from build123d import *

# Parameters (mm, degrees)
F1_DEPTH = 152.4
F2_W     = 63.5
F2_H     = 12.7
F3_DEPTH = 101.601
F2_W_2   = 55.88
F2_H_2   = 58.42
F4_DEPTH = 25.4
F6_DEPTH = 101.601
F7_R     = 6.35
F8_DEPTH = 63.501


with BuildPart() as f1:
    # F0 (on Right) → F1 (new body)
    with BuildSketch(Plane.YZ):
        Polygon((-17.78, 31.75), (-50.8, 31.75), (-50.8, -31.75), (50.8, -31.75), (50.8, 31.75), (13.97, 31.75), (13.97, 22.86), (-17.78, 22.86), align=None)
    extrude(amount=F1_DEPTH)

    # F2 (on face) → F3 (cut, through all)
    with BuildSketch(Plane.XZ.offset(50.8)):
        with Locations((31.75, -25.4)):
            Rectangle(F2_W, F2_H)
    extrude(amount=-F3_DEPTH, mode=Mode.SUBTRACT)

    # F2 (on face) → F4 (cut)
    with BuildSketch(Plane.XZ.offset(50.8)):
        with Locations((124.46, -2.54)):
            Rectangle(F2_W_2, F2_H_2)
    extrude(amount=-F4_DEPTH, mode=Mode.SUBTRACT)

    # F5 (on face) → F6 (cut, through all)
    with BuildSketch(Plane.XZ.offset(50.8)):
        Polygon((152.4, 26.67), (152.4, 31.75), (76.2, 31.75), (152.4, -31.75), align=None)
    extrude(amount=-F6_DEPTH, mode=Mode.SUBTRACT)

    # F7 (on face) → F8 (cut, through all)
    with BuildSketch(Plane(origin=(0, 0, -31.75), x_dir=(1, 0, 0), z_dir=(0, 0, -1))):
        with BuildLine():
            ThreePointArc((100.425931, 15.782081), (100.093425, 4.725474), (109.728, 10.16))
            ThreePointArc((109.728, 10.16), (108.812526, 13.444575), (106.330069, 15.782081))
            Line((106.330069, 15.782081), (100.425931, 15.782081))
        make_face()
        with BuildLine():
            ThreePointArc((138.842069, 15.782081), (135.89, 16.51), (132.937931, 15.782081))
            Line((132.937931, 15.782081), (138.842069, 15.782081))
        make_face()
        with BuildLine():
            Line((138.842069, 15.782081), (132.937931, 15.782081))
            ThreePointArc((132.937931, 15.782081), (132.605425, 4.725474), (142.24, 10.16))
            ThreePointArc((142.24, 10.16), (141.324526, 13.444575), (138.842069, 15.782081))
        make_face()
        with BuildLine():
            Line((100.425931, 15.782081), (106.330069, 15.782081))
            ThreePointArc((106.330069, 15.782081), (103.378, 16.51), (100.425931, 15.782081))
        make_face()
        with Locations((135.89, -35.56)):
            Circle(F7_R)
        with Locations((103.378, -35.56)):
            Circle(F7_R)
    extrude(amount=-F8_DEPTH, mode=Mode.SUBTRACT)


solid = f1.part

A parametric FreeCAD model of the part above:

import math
import FreeCAD as App
import Part
import Sketcher
from FreeCAD import Vector
Q = App.Units.Quantity


def add_polygon(sketch, points):
    """Adds a closed chain of lines whose ends are joined by coincident constraints."""
    first, n = sketch.GeometryCount, len(points)
    for a, b in zip(points, points[1:] + points[:1]):
        sketch.addGeometry(Part.LineSegment(App.Vector(*a, 0), App.Vector(*b, 0)), False)
    for i in range(n):
        sketch.addConstraint(Sketcher.Constraint("Coincident", first + i, 2, first + (i + 1) % n, 1))

doc = App.newDocument("Part")
body = doc.addObject("PartDesign::Body", "Body")

sketch1 = doc.addObject("Sketcher::SketchObject", "Sketch")
body.addObject(sketch1)
sketch1.AttachmentSupport = (doc.YZ_Plane, [""])
sketch1.MapMode = "FlatFace"
add_polygon(sketch1, [(-17.78, 31.75), (-50.8, 31.75), (-50.8, -31.75), (50.8, -31.75), (50.8, 31.75), (13.97, 31.75), (13.97, 22.86), (-17.78, 22.86)])
sketch1.addConstraint(Sketcher.Constraint("Horizontal", 0))
sketch1.addConstraint(Sketcher.Constraint("Vertical", 1))
sketch1.addConstraint(Sketcher.Constraint("Horizontal", 2))
sketch1.addConstraint(Sketcher.Constraint("Vertical", 3))
sketch1.addConstraint(Sketcher.Constraint("Horizontal", 4))
sketch1.addConstraint(Sketcher.Constraint("Vertical", 5))
sketch1.addConstraint(Sketcher.Constraint("Horizontal", 6))
sketch1.addConstraint(Sketcher.Constraint("Vertical", 7))
sketch1.addConstraint(Sketcher.Constraint("Symmetric", 0, 2, 2, 2, -1, 1))
sketch1.addConstraint(Sketcher.Constraint("Horizontal", 0, 2, 3, 2))
sketch1.addConstraint(Sketcher.Constraint("DistanceX", 2, 1, 2, 2, Q("4 in")))
sketch1.addConstraint(Sketcher.Constraint("DistanceX", 0, 2, 0, 1, Q("1.3 in")))
sketch1.addConstraint(Sketcher.Constraint("DistanceY", 1, 2, 1, 1, Q("2.5 in")))
sketch1.addConstraint(Sketcher.Constraint("DistanceX", 4, 2, 4, 1, Q("1.45 in")))
sketch1.addConstraint(Sketcher.Constraint("DistanceY", 5, 2, 5, 1, Q("0.35 in")))
pad1 = doc.addObject("PartDesign::Pad", "Pad")
body.addObject(pad1)
pad1.Profile = sketch1
pad1.Length = Q("6 in")

sketch2 = doc.addObject("Sketcher::SketchObject", "Sketch001")
body.addObject(sketch2)
sketch2.AttachmentSupport = (doc.XZ_Plane, [""])
sketch2.MapMode = "FlatFace"
sketch2.AttachmentOffset = App.Placement(Vector(0, 0, 2 * 25.4), App.Rotation())
add_polygon(sketch2, [(0, -19.05), (0, -31.75), (63.5, -31.75), (63.5, -19.05)])
sketch2.addConstraint(Sketcher.Constraint("Vertical", 0))
sketch2.addConstraint(Sketcher.Constraint("Horizontal", 1))
sketch2.addConstraint(Sketcher.Constraint("Vertical", 2))
sketch2.addConstraint(Sketcher.Constraint("Horizontal", 3))
sketch2.addConstraint(Sketcher.Constraint("PointOnObject", 0, 2, -2))
sketch2.addConstraint(Sketcher.Constraint("DistanceX", 1, 1, 1, 2, Q("2.5 in")))
sketch2.addConstraint(Sketcher.Constraint("DistanceY", 0, 2, 0, 1, Q("0.5 in")))
sketch2.addConstraint(Sketcher.Constraint("DistanceY", 0, 2, -1, 1, Q("1.25 in")))
pocket1 = doc.addObject("PartDesign::Pocket", "Pocket")
body.addObject(pocket1)
pocket1.Profile = sketch2
pocket1.Type = "ThroughAll"

sketch3 = doc.addObject("Sketcher::SketchObject", "Sketch002")
body.addObject(sketch3)
sketch3.AttachmentSupport = (doc.XZ_Plane, [""])
sketch3.MapMode = "FlatFace"
sketch3.AttachmentOffset = App.Placement(Vector(0, 0, 2 * 25.4), App.Rotation())
add_polygon(sketch3, [(96.52, 26.67), (96.52, -31.75), (152.4, -31.75), (152.4, 26.67)])
sketch3.addConstraint(Sketcher.Constraint("Vertical", 0))
sketch3.addConstraint(Sketcher.Constraint("Horizontal", 1))
sketch3.addConstraint(Sketcher.Constraint("Vertical", 2))
sketch3.addConstraint(Sketcher.Constraint("Horizontal", 3))
sketch3.addConstraint(Sketcher.Constraint("DistanceX", 1, 1, 1, 2, Q("2.2 in")))
sketch3.addConstraint(Sketcher.Constraint("DistanceY", 0, 2, 0, 1, Q("2.3 in")))
sketch3.addConstraint(Sketcher.Constraint("DistanceX", -1, 1, 1, 2, Q("6 in")))
sketch3.addConstraint(Sketcher.Constraint("DistanceY", 0, 2, -1, 1, Q("1.25 in")))
pocket2 = doc.addObject("PartDesign::Pocket", "Pocket001")
body.addObject(pocket2)
pocket2.Profile = sketch3
pocket2.Length = Q("1 in")

sketch4 = doc.addObject("Sketcher::SketchObject", "Sketch003")
body.addObject(sketch4)
sketch4.AttachmentSupport = (doc.XZ_Plane, [""])
sketch4.MapMode = "FlatFace"
sketch4.AttachmentOffset = App.Placement(Vector(0, 0, 2 * 25.4), App.Rotation())
add_polygon(sketch4, [(152.4, 31.75), (76.2, 31.75), (152.4, -31.75)])
sketch4.addConstraint(Sketcher.Constraint("Horizontal", 0))
sketch4.addConstraint(Sketcher.Constraint("Vertical", 2))
sketch4.addConstraint(Sketcher.Constraint("DistanceX", 0, 2, 0, 1, Q("3 in")))
sketch4.addConstraint(Sketcher.Constraint("DistanceY", 2, 1, 2, 2, Q("2.5 in")))
sketch4.addConstraint(Sketcher.Constraint("DistanceX", -1, 1, 0, 2, Q("3 in")))
sketch4.addConstraint(Sketcher.Constraint("DistanceY", -1, 1, 0, 2, Q("1.25 in")))
pocket3 = doc.addObject("PartDesign::Pocket", "Pocket002")
body.addObject(pocket3)
pocket3.Profile = sketch4
pocket3.Type = "ThroughAll"

sketch5 = doc.addObject("Sketcher::SketchObject", "Sketch004")
body.addObject(sketch5)
sketch5.AttachmentSupport = (doc.XY_Plane, [""])
sketch5.MapMode = "FlatFace"
sketch5.AttachmentOffset = App.Placement(Vector(0, 0, -1.25 * 25.4), App.Rotation())
sketch5.addGeometry(Part.ArcOfCircle(Part.Circle(Vector(103.378, -10.16, 0), Vector(0, 0, 1), 6.35), math.radians(0), math.radians(242.296723)), False)
sketch5.addGeometry(Part.ArcOfCircle(Part.Circle(Vector(103.378001, -10.160001, 0), Vector(0, 0, 1), 6.349999), math.radians(-62.296724), math.radians(0.00001)), False)
sketch5.addGeometry(Part.ArcOfCircle(Part.Circle(Vector(103.378, -10.159996, 0), Vector(0, 0, 1), 6.350004), math.radians(-117.703262), math.radians(-62.296738)), False)
sketch5.addGeometry(Part.ArcOfCircle(Part.Circle(Vector(135.89, -10.159996, 0), Vector(0, 0, 1), 6.350004), math.radians(-117.703262), math.radians(-62.296738)), False)
sketch5.addGeometry(Part.ArcOfCircle(Part.Circle(Vector(135.89, -10.16, 0), Vector(0, 0, 1), 6.35), math.radians(0), math.radians(242.296723)), False)
sketch5.addGeometry(Part.ArcOfCircle(Part.Circle(Vector(135.890001, -10.160001, 0), Vector(0, 0, 1), 6.349999), math.radians(-62.296724), math.radians(0.00001)), False)
sketch5.addGeometry(Part.Circle(Vector(135.89, 35.56, 0), Vector(0, 0, 1), 6.35), False)
sketch5.addGeometry(Part.Circle(Vector(103.378, 35.56, 0), Vector(0, 0, 1), 6.35), False)
sketch5.addConstraint(Sketcher.Constraint("Tangent", 0, 1, 1, 2))
sketch5.addConstraint(Sketcher.Constraint("Tangent", 1, 1, 2, 2))
sketch5.addConstraint(Sketcher.Constraint("Tangent", 2, 1, 0, 2))
sketch5.addConstraint(Sketcher.Constraint("Tangent", 3, 1, 4, 2))
sketch5.addConstraint(Sketcher.Constraint("Tangent", 4, 1, 5, 2))
sketch5.addConstraint(Sketcher.Constraint("Tangent", 5, 1, 3, 2))
sketch5.addConstraint(Sketcher.Constraint("Equal", 2, 3))
sketch5.addConstraint(Sketcher.Constraint("Equal", 5, 6))
sketch5.addConstraint(Sketcher.Constraint("Equal", 6, 7))
sketch5.addConstraint(Sketcher.Constraint("Horizontal", 2, 3, 3, 3))
sketch5.addConstraint(Sketcher.Constraint("Horizontal", 6, 3, 7, 3))
sketch5.addConstraint(Sketcher.Constraint("Horizontal", 5, 3, 0, 1))
sketch5.addConstraint(Sketcher.Constraint("Horizontal", 1, 1, 2, 1))
sketch5.addConstraint(Sketcher.Constraint("Horizontal", 2, 1, 3, 1))
sketch5.addConstraint(Sketcher.Constraint("Horizontal", 0, 1, 4, 1))
sketch5.addConstraint(Sketcher.Constraint("Horizontal", 3, 1, 5, 1))
sketch5.addConstraint(Sketcher.Constraint("Vertical", 5, 3, 6, 3))
sketch5.addConstraint(Sketcher.Constraint("Vertical", 2, 3, 7, 3))
sketch5.addConstraint(Sketcher.Constraint("Diameter", 6, Q("0.5 in")))
sketch5.addConstraint(Sketcher.Constraint("DistanceY", 0, 3, -1, 1, Q("0.4 in")))
sketch5.addConstraint(Sketcher.Constraint("DistanceY", -1, 1, 6, 3, Q("1.4 in")))
sketch5.addConstraint(Sketcher.Constraint("DistanceX", -1, 1, 4, 1, Q("5.6 in")))
sketch5.addConstraint(Sketcher.Constraint("DistanceX", -1, 1, 0, 3, Q("4.07 in")))
sketch5.addConstraint(Sketcher.Constraint("DistanceX", -1, 1, 1, 1, Q("106.330069 mm")))
pocket4 = doc.addObject("PartDesign::Pocket", "Pocket003")
body.addObject(pocket4)
pocket4.Profile = sketch5
pocket4.Type = "ThroughAll"
pocket4.Reversed = True

doc.recompute()
